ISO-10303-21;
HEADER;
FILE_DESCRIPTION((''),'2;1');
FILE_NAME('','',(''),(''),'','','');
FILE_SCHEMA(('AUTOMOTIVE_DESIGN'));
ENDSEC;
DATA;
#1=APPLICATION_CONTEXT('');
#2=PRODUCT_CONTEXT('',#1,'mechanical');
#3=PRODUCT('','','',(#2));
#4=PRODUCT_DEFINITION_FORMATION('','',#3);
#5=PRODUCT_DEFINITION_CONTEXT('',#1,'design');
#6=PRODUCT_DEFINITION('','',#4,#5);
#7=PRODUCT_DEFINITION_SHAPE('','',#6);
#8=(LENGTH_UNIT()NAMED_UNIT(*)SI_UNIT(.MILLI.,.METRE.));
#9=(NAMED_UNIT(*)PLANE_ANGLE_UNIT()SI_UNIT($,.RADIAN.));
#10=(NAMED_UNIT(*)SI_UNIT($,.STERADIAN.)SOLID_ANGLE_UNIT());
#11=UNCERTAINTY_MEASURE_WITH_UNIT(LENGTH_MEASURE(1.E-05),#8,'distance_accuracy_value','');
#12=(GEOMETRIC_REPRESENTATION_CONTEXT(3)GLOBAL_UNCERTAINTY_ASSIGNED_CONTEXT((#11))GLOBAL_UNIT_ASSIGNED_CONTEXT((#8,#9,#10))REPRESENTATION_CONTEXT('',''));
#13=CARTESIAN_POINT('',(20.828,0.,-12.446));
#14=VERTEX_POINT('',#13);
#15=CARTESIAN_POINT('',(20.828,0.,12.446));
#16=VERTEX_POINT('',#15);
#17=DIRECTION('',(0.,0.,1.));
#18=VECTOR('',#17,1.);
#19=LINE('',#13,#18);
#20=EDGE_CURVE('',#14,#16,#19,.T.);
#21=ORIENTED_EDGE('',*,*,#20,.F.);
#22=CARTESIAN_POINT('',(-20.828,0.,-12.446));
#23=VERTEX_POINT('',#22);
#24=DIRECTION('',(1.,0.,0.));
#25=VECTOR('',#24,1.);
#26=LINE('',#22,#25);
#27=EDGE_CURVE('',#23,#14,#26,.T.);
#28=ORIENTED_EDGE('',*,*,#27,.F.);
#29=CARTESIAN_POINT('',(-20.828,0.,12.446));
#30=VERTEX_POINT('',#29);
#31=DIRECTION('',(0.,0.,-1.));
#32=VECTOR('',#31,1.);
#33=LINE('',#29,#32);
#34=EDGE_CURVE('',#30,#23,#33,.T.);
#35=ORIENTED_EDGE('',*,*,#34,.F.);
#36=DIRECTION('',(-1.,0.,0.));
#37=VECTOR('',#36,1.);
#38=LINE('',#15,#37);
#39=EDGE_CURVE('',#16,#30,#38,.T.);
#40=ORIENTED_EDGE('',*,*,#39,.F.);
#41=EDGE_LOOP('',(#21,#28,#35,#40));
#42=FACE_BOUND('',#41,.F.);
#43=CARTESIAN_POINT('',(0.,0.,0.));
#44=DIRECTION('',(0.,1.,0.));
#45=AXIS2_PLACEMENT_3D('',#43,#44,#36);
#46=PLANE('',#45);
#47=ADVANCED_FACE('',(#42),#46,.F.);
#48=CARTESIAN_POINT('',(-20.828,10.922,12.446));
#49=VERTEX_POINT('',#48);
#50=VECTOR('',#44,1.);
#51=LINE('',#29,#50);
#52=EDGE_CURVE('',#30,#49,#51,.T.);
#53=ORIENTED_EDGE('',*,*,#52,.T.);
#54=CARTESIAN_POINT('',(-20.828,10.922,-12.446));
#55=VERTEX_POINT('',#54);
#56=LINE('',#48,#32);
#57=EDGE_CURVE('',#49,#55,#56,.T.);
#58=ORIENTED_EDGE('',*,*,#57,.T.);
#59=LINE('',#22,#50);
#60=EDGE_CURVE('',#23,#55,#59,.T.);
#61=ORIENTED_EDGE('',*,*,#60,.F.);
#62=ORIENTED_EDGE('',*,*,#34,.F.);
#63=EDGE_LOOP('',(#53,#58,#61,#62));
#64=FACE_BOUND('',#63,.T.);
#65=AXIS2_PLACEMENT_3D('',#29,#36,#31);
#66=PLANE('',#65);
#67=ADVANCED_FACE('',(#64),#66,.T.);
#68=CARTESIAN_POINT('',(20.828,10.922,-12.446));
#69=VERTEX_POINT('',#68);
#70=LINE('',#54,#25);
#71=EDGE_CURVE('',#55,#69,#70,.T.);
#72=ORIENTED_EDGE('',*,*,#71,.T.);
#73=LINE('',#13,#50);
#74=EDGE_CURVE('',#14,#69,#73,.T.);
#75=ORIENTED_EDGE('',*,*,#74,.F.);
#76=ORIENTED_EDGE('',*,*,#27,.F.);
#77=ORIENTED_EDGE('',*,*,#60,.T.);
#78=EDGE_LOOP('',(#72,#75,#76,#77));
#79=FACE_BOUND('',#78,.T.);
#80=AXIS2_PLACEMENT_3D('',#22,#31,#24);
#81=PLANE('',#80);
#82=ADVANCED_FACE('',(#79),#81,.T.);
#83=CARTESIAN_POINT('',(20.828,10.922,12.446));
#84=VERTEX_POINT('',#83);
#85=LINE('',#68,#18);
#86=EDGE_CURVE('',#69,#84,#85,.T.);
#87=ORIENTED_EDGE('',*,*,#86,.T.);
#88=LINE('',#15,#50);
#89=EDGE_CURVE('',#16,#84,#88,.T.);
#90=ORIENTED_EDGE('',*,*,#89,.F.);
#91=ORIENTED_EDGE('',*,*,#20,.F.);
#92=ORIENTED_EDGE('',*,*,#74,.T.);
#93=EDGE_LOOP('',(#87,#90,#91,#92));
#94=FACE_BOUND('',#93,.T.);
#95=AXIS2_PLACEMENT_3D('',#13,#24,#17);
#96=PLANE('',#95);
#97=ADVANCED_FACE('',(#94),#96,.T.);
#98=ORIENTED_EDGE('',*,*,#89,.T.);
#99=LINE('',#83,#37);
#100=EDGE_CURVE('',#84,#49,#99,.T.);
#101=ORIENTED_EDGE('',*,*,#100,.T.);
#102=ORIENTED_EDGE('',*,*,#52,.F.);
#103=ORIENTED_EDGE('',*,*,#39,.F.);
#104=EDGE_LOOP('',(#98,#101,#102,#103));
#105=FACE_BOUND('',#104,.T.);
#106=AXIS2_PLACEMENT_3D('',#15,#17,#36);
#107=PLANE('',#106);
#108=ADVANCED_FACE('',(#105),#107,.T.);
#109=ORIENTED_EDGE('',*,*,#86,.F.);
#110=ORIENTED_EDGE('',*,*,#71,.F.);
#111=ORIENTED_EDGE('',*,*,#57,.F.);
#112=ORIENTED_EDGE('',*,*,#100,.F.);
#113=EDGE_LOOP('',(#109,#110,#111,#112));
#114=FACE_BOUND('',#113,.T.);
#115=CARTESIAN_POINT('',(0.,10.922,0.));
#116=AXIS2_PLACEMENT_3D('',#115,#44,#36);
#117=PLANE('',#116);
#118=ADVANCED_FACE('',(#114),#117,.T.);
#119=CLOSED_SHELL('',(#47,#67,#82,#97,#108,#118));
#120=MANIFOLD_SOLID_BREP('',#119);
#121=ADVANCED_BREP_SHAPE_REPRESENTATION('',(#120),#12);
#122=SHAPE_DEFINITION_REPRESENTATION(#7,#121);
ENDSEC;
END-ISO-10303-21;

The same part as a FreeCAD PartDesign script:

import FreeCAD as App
import Part
import Sketcher
Q = App.Units.Quantity

doc = App.newDocument("Part")
body = doc.addObject("PartDesign::Body", "Body")

# Sketch on XZ plane
sketch1 = body.newObject("Sketcher::SketchObject", "Sketch")
sketch1.AttachmentSupport = (doc.getObject("XZ_Plane"), [""])
sketch1.MapMode = "FlatFace"
sketch1.addGeometry(Part.LineSegment(App.Vector(-20.828, 12.446, 0), App.Vector(20.828, 12.446, 0)), False)
sketch1.addGeometry(Part.LineSegment(App.Vector(20.828, 12.446, 0), App.Vector(20.828, -12.446, 0)), False)
sketch1.addGeometry(Part.LineSegment(App.Vector(20.828, -12.446, 0), App.Vector(-20.828, -12.446, 0)), False)
sketch1.addGeometry(Part.LineSegment(App.Vector(-20.828, -12.446, 0), App.Vector(-20.828, 12.446, 0)), False)
sketch1.addConstraint(Sketcher.Constraint("Coincident", 0, 2, 1, 1))
sketch1.addConstraint(Sketcher.Constraint("Coincident", 1, 2, 2, 1))
sketch1.addConstraint(Sketcher.Constraint("Coincident", 2, 2, 3, 1))
sketch1.addConstraint(Sketcher.Constraint("Coincident", 3, 2, 0, 1))
sketch1.addConstraint(Sketcher.Constraint("Horizontal", 0))
sketch1.addConstraint(Sketcher.Constraint("Vertical", 1))
sketch1.addConstraint(Sketcher.Constraint("Horizontal", 2))
sketch1.addConstraint(Sketcher.Constraint("Vertical", 3))
sketch1.addConstraint(Sketcher.Constraint("Symmetric", 0, 2, 2, 2, -1, 1))
sketch1.addConstraint(Sketcher.Constraint("DistanceX", 0, 1, 0, 2, Q("1.64 in")))
sketch1.addConstraint(Sketcher.Constraint("DistanceY", 1, 2, 1, 1, Q("0.98 in")))
pad1 = body.newObject("PartDesign::Pad", "Pad")
pad1.Profile = sketch1
pad1.Length = Q("0.43 in")
pad1.Reversed = True

doc.recompute()
